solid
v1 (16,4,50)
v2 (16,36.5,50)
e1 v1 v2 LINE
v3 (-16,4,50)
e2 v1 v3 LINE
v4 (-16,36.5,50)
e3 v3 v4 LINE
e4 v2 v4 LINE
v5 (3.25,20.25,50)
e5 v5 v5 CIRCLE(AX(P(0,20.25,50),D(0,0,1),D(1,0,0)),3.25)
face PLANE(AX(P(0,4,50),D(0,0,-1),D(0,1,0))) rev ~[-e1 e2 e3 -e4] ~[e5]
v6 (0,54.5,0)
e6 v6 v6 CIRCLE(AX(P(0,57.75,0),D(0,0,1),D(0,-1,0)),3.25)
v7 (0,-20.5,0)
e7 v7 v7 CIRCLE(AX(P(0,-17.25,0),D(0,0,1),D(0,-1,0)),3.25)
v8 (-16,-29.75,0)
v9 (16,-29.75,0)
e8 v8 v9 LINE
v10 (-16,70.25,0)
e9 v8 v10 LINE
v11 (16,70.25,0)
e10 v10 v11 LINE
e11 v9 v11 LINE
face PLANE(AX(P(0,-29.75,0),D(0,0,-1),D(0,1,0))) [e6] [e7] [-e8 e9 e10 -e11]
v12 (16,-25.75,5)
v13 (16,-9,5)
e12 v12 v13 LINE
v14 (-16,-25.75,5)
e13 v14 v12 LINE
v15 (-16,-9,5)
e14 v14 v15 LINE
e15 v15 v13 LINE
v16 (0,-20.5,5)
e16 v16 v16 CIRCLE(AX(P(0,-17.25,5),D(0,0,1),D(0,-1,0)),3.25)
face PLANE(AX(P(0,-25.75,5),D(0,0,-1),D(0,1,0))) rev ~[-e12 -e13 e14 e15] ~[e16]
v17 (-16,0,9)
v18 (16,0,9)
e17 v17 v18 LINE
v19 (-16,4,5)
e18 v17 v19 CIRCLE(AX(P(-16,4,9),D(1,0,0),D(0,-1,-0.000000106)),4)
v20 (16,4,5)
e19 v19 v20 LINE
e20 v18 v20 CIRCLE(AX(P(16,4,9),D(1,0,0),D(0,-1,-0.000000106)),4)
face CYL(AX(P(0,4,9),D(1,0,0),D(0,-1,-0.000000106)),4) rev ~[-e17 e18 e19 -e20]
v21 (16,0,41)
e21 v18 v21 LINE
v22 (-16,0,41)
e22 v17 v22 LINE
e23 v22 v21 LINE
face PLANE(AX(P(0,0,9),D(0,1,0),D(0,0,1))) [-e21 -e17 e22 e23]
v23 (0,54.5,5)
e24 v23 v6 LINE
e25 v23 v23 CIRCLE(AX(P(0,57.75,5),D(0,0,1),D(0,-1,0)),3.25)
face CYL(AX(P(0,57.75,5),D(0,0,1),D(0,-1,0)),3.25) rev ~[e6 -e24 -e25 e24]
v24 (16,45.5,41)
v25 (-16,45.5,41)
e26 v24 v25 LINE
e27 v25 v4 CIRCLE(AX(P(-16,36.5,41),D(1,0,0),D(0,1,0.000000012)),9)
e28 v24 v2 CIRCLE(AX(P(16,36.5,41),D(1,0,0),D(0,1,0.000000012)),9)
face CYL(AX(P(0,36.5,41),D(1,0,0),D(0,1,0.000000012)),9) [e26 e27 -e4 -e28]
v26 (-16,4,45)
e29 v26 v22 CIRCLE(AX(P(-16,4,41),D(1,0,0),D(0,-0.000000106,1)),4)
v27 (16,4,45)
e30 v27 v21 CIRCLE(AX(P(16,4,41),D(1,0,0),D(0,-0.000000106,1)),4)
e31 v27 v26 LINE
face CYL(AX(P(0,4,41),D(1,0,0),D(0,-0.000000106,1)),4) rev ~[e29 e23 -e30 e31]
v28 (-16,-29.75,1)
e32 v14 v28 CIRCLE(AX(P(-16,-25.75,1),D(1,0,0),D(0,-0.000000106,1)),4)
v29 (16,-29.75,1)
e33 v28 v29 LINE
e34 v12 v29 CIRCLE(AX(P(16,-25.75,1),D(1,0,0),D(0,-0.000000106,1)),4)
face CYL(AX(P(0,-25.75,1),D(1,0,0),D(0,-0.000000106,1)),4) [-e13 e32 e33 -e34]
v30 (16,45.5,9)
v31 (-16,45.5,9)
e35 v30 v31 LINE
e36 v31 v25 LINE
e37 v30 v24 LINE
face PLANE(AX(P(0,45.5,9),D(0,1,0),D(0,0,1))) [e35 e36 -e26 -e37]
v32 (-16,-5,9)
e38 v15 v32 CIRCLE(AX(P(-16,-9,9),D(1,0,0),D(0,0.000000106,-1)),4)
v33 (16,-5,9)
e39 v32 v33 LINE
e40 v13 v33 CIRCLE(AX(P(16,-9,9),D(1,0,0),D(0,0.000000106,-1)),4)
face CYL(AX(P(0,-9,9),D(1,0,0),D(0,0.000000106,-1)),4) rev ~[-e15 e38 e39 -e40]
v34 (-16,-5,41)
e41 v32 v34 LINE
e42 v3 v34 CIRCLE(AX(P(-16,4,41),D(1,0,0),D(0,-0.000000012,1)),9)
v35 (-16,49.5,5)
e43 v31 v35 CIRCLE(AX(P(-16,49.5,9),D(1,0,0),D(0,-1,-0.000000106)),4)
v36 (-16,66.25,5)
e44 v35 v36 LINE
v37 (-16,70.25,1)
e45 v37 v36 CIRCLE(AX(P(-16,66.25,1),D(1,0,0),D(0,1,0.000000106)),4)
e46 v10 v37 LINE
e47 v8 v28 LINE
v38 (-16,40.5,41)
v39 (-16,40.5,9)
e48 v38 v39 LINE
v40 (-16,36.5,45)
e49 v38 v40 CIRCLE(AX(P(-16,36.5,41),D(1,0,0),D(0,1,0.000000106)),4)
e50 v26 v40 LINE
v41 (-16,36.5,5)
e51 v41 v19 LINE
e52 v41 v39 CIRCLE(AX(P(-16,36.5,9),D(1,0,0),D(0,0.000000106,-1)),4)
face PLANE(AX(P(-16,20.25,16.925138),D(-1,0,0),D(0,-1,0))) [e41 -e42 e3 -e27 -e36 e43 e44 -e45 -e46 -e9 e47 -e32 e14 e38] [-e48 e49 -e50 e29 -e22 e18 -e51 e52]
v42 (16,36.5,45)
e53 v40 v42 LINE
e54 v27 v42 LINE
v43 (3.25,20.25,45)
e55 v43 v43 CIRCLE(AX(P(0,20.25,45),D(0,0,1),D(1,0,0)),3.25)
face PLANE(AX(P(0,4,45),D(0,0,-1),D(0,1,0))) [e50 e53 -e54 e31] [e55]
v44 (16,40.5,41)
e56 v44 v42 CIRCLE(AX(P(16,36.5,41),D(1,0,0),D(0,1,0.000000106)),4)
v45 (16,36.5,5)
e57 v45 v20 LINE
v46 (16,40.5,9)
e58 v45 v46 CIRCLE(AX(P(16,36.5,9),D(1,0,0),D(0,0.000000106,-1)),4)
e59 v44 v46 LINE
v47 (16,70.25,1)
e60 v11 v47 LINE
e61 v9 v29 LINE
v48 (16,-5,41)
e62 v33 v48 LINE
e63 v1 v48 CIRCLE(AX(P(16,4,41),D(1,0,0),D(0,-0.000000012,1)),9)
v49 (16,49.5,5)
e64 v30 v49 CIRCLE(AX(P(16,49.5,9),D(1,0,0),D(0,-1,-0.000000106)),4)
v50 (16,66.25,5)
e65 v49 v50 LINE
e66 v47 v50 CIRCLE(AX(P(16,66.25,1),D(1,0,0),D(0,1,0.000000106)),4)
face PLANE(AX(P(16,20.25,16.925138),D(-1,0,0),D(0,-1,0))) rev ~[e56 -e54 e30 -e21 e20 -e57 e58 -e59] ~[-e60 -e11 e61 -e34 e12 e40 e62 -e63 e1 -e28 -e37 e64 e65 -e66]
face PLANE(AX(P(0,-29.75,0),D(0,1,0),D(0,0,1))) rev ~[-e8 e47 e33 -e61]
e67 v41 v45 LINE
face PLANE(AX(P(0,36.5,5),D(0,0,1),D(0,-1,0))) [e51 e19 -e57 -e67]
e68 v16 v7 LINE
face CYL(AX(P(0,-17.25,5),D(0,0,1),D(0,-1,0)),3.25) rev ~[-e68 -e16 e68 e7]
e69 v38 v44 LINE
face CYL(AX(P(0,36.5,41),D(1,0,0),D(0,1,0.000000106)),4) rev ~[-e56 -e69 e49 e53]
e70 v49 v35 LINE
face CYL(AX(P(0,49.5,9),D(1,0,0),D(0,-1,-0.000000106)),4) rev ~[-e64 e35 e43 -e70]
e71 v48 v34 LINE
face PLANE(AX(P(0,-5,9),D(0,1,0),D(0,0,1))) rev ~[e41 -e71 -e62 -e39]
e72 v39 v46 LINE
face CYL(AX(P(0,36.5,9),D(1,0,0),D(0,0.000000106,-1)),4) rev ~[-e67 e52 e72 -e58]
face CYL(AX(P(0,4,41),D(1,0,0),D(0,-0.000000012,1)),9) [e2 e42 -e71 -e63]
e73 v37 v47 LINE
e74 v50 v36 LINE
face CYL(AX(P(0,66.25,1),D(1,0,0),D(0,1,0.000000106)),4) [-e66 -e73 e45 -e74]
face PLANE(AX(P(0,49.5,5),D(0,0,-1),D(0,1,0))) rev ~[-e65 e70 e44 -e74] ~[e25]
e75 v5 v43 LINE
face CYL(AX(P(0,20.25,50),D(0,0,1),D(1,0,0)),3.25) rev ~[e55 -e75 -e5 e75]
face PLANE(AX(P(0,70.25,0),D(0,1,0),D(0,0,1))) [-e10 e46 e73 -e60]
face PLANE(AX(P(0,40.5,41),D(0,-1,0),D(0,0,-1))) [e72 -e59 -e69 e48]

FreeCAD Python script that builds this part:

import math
import FreeCAD as App
import Part
import Sketcher
Q = App.Units.Quantity

doc = App.newDocument("Part")
params = doc.addObject("Spreadsheet::Sheet", "Params")
for row, (alias, value) in enumerate([
    ("sketch1_radius", "4 mm"),
    ("sketch1_radius2", "9 mm"),
    ("sketch1_width", "100 mm"),
    ("sketch1_height", "32 mm"),
    ("sketch1_height2", "1 mm"),
    ("pad1_length", "32 mm"),
    ("sketch2_diameter", "6.5 mm"),
    ("pocket1_length", "10 mm"),
    ("sketch3_diameter", "6.5 mm"),
    ("pocket2_length", "5 mm"),
], start=1):
    params.set(f"A{row}", alias)
    params.set(f"B{row}", "=" + value)
    params.setAlias(f"B{row}", alias)

body = doc.addObject("PartDesign::Body", "Body")

# Sketch on YZ plane
sketch1 = body.newObject("Sketcher::SketchObject", "Sketch")
sketch1.AttachmentSupport = (doc.getObject("YZ_Plane"), [""])
sketch1.MapMode = "FlatFace"
sketch1.addGeometry(Part.LineSegment(App.Vector(-5, 41, 0), App.Vector(-5, 9, 0)), False)
sketch1.addGeometry(Part.ArcOfCircle(Part.Circle(App.Vector(-9, 9, 0), App.Vector(0, 0, 1), 4), math.radians(-89.999994), math.radians(-0.000006)), False)
sketch1.addGeometry(Part.LineSegment(App.Vector(-9, 5, 0), App.Vector(-25.75, 5, 0)), False)
sketch1.addGeometry(Part.ArcOfCircle(Part.Circle(App.Vector(-25.75, 1, 0), App.Vector(0, 0, 1), 4), math.radians(90.000006), math.radians(179.999994)), False)
sketch1.addGeometry(Part.LineSegment(App.Vector(-29.75, 1, 0), App.Vector(-29.75, 0, 0)), False)
sketch1.addGeometry(Part.LineSegment(App.Vector(-29.75, 0, 0), App.Vector(70.25, 0, 0)), False)
sketch1.addGeometry(Part.LineSegment(App.Vector(70.25, 0, 0), App.Vector(70.25, 1, 0)), False)
sketch1.addGeometry(Part.ArcOfCircle(Part.Circle(App.Vector(66.25, 1, 0), App.Vector(0, 0, 1), 4), math.radians(0.000006), math.radians(89.999994)), False)
sketch1.addGeometry(Part.LineSegment(App.Vector(66.25, 5, 0), App.Vector(49.5, 5, 0)), False)
sketch1.addGeometry(Part.ArcOfCircle(Part.Circle(App.Vector(49.5, 9, 0), App.Vector(0, 0, 1), 4), math.radians(-179.999994), math.radians(-90.000006)), False)
sketch1.addGeometry(Part.LineSegment(App.Vector(45.5, 9, 0), App.Vector(45.5, 41, 0)), False)
sketch1.addGeometry(Part.ArcOfCircle(Part.Circle(App.Vector(36.5, 41, 0), App.Vector(0, 0, 1), 9), math.radians(0.000001), math.radians(89.999999)), False)
sketch1.addGeometry(Part.LineSegment(App.Vector(36.5, 50, 0), App.Vector(4, 50, 0)), False)
sketch1.addGeometry(Part.ArcOfCircle(Part.Circle(App.Vector(4, 41, 0), App.Vector(0, 0, 1), 9), math.radians(90.000001), math.radians(179.999999)), False)
sketch1.addGeometry(Part.LineSegment(App.Vector(4, 45, 0), App.Vector(36.5, 45, 0)), False)
sketch1.addGeometry(Part.ArcOfCircle(Part.Circle(App.Vector(36.5, 41, 0), App.Vector(0, 0, 1), 4), math.radians(0.000006), math.radians(89.999994)), False)
sketch1.addGeometry(Part.LineSegment(App.Vector(40.5, 41, 0), App.Vector(40.5, 9, 0)), False)
sketch1.addGeometry(Part.ArcOfCircle(Part.Circle(App.Vector(36.5, 9, 0), App.Vector(0, 0, 1), 4), math.radians(-89.999994), math.radians(-0.000006)), False)
sketch1.addGeometry(Part.LineSegment(App.Vector(36.5, 5, 0), App.Vector(4, 5, 0)), False)
sketch1.addGeometry(Part.ArcOfCircle(Part.Circle(App.Vector(4, 9, 0), App.Vector(0, 0, 1), 4), math.radians(-179.999994), math.radians(-90.000006)), False)
sketch1.addGeometry(Part.LineSegment(App.Vector(0, 9, 0), App.Vector(0, 41, 0)), False)
sketch1.addGeometry(Part.ArcOfCircle(Part.Circle(App.Vector(4, 41, 0), App.Vector(0, 0, 1), 4), math.radians(90.000006), math.radians(179.999994)), False)
sketch1.addConstraint(Sketcher.Constraint("Tangent", 0, 2, 1, 2))
sketch1.addConstraint(Sketcher.Constraint("Tangent", 1, 1, 2, 1))
sketch1.addConstraint(Sketcher.Constraint("Tangent", 2, 2, 3, 1))
sketch1.addConstraint(Sketcher.Constraint("Tangent", 3, 2, 4, 1))
sketch1.addConstraint(Sketcher.Constraint("Coincident", 4, 2, 5, 1))
sketch1.addConstraint(Sketcher.Constraint("Coincident", 5, 2, 6, 1))
sketch1.addConstraint(Sketcher.Constraint("Tangent", 6, 2, 7, 1))
sketch1.addConstraint(Sketcher.Constraint("Tangent", 7, 2, 8, 1))
sketch1.addConstraint(Sketcher.Constraint("Tangent", 8, 2, 9, 2))
sketch1.addConstraint(Sketcher.Constraint("Tangent", 9, 1, 10, 1))
sketch1.addConstraint(Sketcher.Constraint("Tangent", 10, 2, 11, 1))
sketch1.addConstraint(Sketcher.Constraint("Tangent", 11, 2, 12, 1))
sketch1.addConstraint(Sketcher.Constraint("Tangent", 12, 2, 13, 1))
sketch1.addConstraint(Sketcher.Constraint("Tangent", 13, 2, 0, 1))
sketch1.addConstraint(Sketcher.Constraint("Tangent", 14, 2, 15, 2))
sketch1.addConstraint(Sketcher.Constraint("Tangent", 15, 1, 16, 1))
sketch1.addConstraint(Sketcher.Constraint("Tangent", 16, 2, 17, 2))
sketch1.addConstraint(Sketcher.Constraint("Tangent", 17, 1, 18, 1))
sketch1.addConstraint(Sketcher.Constraint("Tangent", 18, 2, 19, 2))
sketch1.addConstraint(Sketcher.Constraint("Tangent", 19, 1, 20, 1))
sketch1.addConstraint(Sketcher.Constraint("Tangent", 20, 2, 21, 2))
sketch1.addConstraint(Sketcher.Constraint("Tangent", 21, 1, 14, 1))
sketch1.addConstraint(Sketcher.Constraint("Vertical", 0))
sketch1.addConstraint(Sketcher.Constraint("Horizontal", 2))
sketch1.addConstraint(Sketcher.Constraint("Vertical", 4))
sketch1.addConstraint(Sketcher.Constraint("Horizontal", 5))
sketch1.addConstraint(Sketcher.Constraint("Vertical", 6))
sketch1.addConstraint(Sketcher.Constraint("Horizontal", 8))
sketch1.addConstraint(Sketcher.Constraint("Vertical", 10))
sketch1.addConstraint(Sketcher.Constraint("Horizontal", 12))
sketch1.addConstraint(Sketcher.Constraint("Horizontal", 14))
sketch1.addConstraint(Sketcher.Constraint("Vertical", 16))
sketch1.addConstraint(Sketcher.Constraint("Horizontal", 18))
sketch1.addConstraint(Sketcher.Constraint("Vertical", 20))
sketch1.addConstraint(Sketcher.Constraint("Coincident", 15, 3, 11, 3))
sketch1.addConstraint(Sketcher.Constraint("Coincident", 21, 3, 13, 3))
sketch1.addConstraint(Sketcher.Constraint("Equal", 1, 3))
sketch1.addConstraint(Sketcher.Constraint("Equal", 3, 7))
sketch1.addConstraint(Sketcher.Constraint("Equal", 7, 9))
sketch1.addConstraint(Sketcher.Constraint("Equal", 11, 13))
sketch1.addConstraint(Sketcher.Constraint("Equal", 9, 15))
sketch1.addConstraint(Sketcher.Constraint("Equal", 15, 17))
sketch1.addConstraint(Sketcher.Constraint("Equal", 17, 19))
sketch1.addConstraint(Sketcher.Constraint("PointOnObject", 4, 2, -1))
sketch1.addConstraint(Sketcher.Constraint("PointOnObject", 19, 1, -2))
sketch1.addConstraint(Sketcher.Constraint("Horizontal", 3, 3, 7, 3))
sketch1.addConstraint(Sketcher.Constraint("Horizontal", 9, 3, 17, 3))
sketch1.addConstraint(Sketcher.Constraint("Equal", 2, 8))
sketch1.addConstraint(Sketcher.Constraint("Radius", 1, Q("4 mm")))
sketch1.addConstraint(Sketcher.Constraint("Radius", 11, Q("9 mm")))
sketch1.addConstraint(Sketcher.Constraint("DistanceX", 5, 1, 5, 2, Q("100 mm")))
sketch1.addConstraint(Sketcher.Constraint("DistanceY", 0, 2, 0, 1, Q("32 mm")))
sketch1.addConstraint(Sketcher.Constraint("DistanceY", 4, 2, 4, 1, Q("1 mm")))
sketch1.addConstraint(Sketcher.Constraint("DistanceX", 12, 2, 12, 1, Q("32.5 mm")))
sketch1.setExpression("Constraints[48]", "Params.sketch1_radius")
sketch1.setExpression("Constraints[49]", "Params.sketch1_radius2")
sketch1.setExpression("Constraints[50]", "Params.sketch1_width")
sketch1.setExpression("Constraints[51]", "Params.sketch1_height")
sketch1.setExpression("Constraints[52]", "Params.sketch1_height2")
pad1 = body.newObject("PartDesign::Pad", "Pad")
pad1.Profile = sketch1
pad1.setExpression("Length", "Params.pad1_length")
pad1.Midplane = True

# Sketch on XY plane
sketch2 = body.newObject("Sketcher::SketchObject", "Sketch001")
sketch2.AttachmentSupport = (doc.getObject("XY_Plane"), [""])
sketch2.MapMode = "FlatFace"
sketch2.AttachmentOffset = App.Placement(App.Vector(0, 0, 50), App.Rotation())
sketch2.addGeometry(Part.Circle(App.Vector(0, 20.25, 0), App.Vector(0, 0, 1), 3.25), False)
sketch2.addConstraint(Sketcher.Constraint("PointOnObject", 0, 3, -2))
sketch2.addConstraint(Sketcher.Constraint("Diameter", 0, Q("6.5 mm")))
sketch2.addConstraint(Sketcher.Constraint("DistanceY", -1, 1, 0, 3, Q("20.25 mm")))
sketch2.setExpression("Constraints[1]", "Params.sketch2_diameter")
pocket1 = body.newObject("PartDesign::Pocket", "Pocket")
pocket1.Profile = sketch2
pocket1.setExpression("Length", "Params.pocket1_length")

# Sketch on XY plane
sketch3 = body.newObject("Sketcher::SketchObject", "Sketch002")
sketch3.AttachmentSupport = (doc.getObject("XY_Plane"), [""])
sketch3.MapMode = "FlatFace"
sketch3.AttachmentOffset = App.Placement(App.Vector(0, 0, 5), App.Rotation())
sketch3.addGeometry(Part.Circle(App.Vector(0, 57.75, 0), App.Vector(0, 0, 1), 3.25), False)
sketch3.addGeometry(Part.Circle(App.Vector(0, -17.25, 0), App.Vector(0, 0, 1), 3.25), False)
sketch3.addConstraint(Sketcher.Constraint("Equal", 0, 1))
sketch3.addConstraint(Sketcher.Constraint("PointOnObject", 0, 3, -2))
sketch3.addConstraint(Sketcher.Constraint("PointOnObject", 1, 3, -2))
sketch3.addConstraint(Sketcher.Constraint("Diameter", 0, Q("6.5 mm")))
sketch3.addConstraint(Sketcher.Constraint("DistanceY", 1, 3, 0, 3, Q("75 mm")))
sketch3.addConstraint(Sketcher.Constraint("DistanceY", -1, 1, 0, 3, Q("57.75 mm")))
sketch3.setExpression("Constraints[3]", "Params.sketch3_diameter")
pocket2 = body.newObject("PartDesign::Pocket", "Pocket001")
pocket2.Profile = sketch3
pocket2.setExpression("Length", "Params.pocket2_length")

doc.recompute()
